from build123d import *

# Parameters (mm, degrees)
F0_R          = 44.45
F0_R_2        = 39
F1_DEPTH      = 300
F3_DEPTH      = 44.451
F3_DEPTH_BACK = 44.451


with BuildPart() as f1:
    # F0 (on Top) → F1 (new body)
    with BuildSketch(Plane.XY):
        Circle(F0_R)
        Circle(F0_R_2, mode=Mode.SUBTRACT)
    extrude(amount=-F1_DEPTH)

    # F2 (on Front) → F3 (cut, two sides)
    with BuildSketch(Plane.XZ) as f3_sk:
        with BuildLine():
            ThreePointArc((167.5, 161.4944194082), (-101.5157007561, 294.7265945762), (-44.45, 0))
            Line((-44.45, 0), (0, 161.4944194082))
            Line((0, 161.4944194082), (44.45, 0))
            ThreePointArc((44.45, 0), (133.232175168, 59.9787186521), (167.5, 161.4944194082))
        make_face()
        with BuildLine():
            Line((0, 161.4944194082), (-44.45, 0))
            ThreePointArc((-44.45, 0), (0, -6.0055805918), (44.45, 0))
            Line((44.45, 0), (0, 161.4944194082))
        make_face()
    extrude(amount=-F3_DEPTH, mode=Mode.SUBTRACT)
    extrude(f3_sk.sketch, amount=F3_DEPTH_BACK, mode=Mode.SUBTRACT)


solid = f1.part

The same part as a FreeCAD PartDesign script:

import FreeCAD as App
import Part
import Sketcher

V = App.Vector
Q = App.Units.Quantity

doc = App.newDocument("Part")
body = doc.addObject("PartDesign::Body", "Body")

# Sketch on XY plane
sketch1 = doc.addObject("Sketcher::SketchObject", "Sketch")
body.addObject(sketch1)
sketch1.AttachmentSupport = (doc.XY_Plane, [""])
sketch1.MapMode = "FlatFace"
sketch1.addGeometry(Part.Circle(V(0, 0, 0), V(0, 0, 1), 44), False)
sketch1.addGeometry(Part.Circle(V(0, 0, 0), V(0, 0, 1), 39), False)
sketch1.addConstraint(Sketcher.Constraint("Coincident", 0, 3, -1, 1))
sketch1.addConstraint(Sketcher.Constraint("Coincident", 1, 3, -1, 1))
sketch1.addConstraint(Sketcher.Constraint("Diameter", 1, Q("78 mm")))
sketch1.addConstraint(Sketcher.Constraint("Diameter", 0, Q("88.9 mm")))
pad1 = doc.addObject("PartDesign::Pad", "Pad")
body.addObject(pad1)
pad1.Profile = sketch1
pad1.Length = 300
pad1.Reversed = True

# Sketch on XZ plane
sketch2 = doc.addObject("Sketcher::SketchObject", "Sketch001")
body.addObject(sketch2)
sketch2.AttachmentSupport = (doc.XZ_Plane, [""])
sketch2.MapMode = "FlatFace"
sketch2.addGeometry(Part.Circle(V(0, 161, 0), V(0, 0, 1), 168), False)
sketch2.addConstraint(Sketcher.Constraint("PointOnObject", 0, 3, -2))
sketch2.addConstraint(Sketcher.Constraint("Diameter", 0, Q("335 mm")))
sketch2.addConstraint(Sketcher.Constraint("DistanceY", -1, 1, 0, 3, Q("161.494419 mm")))
pocket1 = doc.addObject("PartDesign::Pocket", "Pocket")
body.addObject(pocket1)
pocket1.Profile = sketch2
pocket1.Type = "ThroughAll"
pocket1.Midplane = True

doc.recompute()
